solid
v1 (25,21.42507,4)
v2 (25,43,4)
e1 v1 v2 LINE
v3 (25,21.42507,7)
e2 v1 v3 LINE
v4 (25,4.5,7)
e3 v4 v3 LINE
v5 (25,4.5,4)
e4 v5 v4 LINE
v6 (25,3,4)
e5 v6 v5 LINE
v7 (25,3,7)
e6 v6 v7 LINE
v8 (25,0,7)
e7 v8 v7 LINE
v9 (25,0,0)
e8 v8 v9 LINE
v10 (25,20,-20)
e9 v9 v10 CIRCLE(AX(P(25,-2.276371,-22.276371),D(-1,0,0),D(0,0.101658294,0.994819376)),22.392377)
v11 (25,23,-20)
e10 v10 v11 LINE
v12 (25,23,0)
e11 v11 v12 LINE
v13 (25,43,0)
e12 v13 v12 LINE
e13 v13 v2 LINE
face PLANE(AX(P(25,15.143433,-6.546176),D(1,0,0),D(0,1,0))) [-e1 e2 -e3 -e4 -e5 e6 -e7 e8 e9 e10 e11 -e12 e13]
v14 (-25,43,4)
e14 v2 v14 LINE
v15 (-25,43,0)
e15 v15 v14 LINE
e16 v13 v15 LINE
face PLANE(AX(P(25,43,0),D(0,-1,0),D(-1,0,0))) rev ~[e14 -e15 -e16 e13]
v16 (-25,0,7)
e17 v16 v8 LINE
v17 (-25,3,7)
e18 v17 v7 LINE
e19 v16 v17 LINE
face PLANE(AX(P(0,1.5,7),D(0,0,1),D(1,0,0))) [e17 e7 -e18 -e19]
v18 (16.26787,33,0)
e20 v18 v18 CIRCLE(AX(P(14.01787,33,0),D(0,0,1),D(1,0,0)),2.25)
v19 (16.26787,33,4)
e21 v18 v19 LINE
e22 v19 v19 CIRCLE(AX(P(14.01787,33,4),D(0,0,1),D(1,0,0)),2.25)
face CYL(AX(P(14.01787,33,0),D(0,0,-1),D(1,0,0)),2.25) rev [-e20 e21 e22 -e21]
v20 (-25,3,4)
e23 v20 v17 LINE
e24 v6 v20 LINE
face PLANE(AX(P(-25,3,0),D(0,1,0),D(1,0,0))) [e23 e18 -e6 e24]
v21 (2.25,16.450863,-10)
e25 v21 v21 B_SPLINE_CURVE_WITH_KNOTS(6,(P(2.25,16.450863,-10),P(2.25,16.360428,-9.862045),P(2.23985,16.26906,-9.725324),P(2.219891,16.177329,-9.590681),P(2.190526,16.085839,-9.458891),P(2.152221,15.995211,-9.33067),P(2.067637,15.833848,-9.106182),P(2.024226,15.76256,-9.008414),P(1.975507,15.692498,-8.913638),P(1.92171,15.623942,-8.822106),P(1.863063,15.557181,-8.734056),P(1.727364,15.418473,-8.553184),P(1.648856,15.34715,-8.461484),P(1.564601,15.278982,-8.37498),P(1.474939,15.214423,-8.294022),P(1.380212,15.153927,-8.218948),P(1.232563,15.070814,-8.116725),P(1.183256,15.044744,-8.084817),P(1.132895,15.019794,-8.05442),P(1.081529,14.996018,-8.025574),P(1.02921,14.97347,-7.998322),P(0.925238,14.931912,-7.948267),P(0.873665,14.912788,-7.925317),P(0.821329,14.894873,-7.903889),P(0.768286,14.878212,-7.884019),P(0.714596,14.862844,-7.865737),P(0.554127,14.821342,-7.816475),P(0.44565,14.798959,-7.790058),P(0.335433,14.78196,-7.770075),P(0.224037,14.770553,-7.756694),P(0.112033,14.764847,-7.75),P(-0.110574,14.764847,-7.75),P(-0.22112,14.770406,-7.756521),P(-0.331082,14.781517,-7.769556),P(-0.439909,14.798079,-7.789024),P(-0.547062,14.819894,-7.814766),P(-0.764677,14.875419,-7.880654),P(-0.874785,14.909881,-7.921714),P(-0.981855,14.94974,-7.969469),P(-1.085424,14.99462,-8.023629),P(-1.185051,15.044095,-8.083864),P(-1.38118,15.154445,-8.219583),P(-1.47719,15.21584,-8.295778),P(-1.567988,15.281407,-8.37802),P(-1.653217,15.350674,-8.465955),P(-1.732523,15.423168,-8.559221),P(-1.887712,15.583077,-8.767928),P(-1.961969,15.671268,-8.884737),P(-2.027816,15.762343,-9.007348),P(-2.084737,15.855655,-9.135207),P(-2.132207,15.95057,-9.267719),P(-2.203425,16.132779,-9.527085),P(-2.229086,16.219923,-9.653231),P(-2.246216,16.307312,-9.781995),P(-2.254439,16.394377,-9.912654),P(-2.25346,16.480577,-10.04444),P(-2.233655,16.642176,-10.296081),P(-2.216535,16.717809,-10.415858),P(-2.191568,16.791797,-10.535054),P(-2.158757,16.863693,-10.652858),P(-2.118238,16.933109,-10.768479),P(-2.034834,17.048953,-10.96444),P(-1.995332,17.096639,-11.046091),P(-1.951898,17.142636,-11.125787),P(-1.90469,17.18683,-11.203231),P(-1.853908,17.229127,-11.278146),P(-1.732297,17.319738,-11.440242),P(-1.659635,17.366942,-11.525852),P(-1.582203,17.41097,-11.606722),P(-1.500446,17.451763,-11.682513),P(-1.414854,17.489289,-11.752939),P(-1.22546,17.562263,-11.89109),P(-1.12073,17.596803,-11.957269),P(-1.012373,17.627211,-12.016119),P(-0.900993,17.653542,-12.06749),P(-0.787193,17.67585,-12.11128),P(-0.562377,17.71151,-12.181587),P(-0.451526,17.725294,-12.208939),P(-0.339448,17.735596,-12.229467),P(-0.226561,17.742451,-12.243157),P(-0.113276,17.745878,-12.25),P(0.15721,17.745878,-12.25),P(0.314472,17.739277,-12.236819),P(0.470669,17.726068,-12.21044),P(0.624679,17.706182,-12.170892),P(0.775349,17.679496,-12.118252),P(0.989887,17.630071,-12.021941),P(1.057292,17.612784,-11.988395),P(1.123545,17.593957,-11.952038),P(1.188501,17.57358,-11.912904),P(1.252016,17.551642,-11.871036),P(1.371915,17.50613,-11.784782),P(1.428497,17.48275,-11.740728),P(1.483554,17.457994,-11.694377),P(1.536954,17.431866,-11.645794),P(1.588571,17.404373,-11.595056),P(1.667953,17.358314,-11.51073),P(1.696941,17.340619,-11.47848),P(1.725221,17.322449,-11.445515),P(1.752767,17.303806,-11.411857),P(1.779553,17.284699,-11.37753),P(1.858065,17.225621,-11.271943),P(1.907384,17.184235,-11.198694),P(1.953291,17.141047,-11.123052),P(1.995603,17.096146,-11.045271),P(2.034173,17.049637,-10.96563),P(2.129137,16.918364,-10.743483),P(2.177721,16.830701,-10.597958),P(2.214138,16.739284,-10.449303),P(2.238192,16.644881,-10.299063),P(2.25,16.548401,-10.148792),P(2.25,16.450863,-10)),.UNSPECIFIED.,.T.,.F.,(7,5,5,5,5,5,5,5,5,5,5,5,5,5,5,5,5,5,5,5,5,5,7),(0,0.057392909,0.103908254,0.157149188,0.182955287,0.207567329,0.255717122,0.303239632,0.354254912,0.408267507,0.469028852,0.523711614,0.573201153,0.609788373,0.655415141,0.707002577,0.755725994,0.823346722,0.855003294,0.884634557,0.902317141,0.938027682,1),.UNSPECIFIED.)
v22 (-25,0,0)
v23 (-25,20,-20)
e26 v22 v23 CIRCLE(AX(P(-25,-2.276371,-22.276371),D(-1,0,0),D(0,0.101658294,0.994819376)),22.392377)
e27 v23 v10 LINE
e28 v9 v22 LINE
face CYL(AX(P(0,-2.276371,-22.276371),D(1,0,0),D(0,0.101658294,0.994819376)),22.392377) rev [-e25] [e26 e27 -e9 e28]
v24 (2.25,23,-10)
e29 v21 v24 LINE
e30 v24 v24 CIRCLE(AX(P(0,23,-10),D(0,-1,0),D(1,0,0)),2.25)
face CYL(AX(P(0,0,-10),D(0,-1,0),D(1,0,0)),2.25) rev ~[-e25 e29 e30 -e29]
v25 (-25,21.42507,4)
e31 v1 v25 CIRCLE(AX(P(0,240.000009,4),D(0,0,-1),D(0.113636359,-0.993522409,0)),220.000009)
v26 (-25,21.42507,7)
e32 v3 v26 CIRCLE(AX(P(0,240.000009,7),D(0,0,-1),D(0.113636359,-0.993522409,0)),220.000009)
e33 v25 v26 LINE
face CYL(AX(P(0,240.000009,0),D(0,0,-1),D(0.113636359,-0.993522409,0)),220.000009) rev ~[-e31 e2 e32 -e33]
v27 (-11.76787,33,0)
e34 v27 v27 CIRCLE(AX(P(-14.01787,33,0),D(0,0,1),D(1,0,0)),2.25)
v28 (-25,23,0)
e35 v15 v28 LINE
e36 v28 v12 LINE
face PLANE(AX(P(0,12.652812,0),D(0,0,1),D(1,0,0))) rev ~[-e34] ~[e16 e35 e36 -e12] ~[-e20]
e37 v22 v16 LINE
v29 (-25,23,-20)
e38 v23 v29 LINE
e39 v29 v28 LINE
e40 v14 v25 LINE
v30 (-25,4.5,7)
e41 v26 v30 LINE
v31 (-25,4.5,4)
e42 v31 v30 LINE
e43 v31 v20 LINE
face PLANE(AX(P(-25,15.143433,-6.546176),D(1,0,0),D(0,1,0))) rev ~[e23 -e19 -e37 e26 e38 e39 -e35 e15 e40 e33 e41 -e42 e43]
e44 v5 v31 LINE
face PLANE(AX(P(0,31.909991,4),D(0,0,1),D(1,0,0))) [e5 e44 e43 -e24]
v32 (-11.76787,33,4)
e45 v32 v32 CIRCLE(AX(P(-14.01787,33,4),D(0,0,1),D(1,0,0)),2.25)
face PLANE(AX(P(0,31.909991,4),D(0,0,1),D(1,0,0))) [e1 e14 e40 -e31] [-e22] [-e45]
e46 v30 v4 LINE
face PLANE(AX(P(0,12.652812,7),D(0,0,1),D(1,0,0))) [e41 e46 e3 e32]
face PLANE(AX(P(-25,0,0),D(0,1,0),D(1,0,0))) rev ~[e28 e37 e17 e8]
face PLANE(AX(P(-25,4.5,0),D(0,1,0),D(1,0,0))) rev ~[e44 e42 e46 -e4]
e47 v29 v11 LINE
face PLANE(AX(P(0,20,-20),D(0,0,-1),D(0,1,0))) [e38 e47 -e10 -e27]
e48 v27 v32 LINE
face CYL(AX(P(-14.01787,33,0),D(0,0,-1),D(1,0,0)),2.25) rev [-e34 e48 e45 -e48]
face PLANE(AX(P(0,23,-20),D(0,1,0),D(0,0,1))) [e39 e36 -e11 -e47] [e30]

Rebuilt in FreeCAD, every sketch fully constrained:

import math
import FreeCAD as App
import Part
import Sketcher

doc = App.newDocument("Part")
body = doc.addObject("PartDesign::Body", "Body")

# Sketch on XY plane
sketch1 = body.newObject("Sketcher::SketchObject", "Sketch")
sketch1.AttachmentSupport = (doc.getObject("XY_Plane"), [""])
sketch1.MapMode = "FlatFace"
sketch1.addGeometry([
    Part.LineSegment(App.Vector(-25, 43, 0), App.Vector(-25, 0, 0)),  # 0
    Part.LineSegment(App.Vector(-25, 0, 0), App.Vector(25, 0, 0)),  # 1
    Part.LineSegment(App.Vector(25, 0, 0), App.Vector(25, 43, 0)),  # 2
    Part.LineSegment(App.Vector(25, 43, 0), App.Vector(-25, 43, 0)),  # 3
    Part.Circle(App.Vector(-14, 33, 0), App.Vector(0, 0, 1), 2.2),  # 4
    Part.Circle(App.Vector(14, 33, 0), App.Vector(0, 0, 1), 2.2),  # 5
], False)
sketch1.addConstraint([
    Sketcher.Constraint("Coincident", 0, 2, 1, 1),
    Sketcher.Constraint("Coincident", 1, 2, 2, 1),
    Sketcher.Constraint("Coincident", 2, 2, 3, 1),
    Sketcher.Constraint("Coincident", 3, 2, 0, 1),
    Sketcher.Constraint("Vertical", 0),
    Sketcher.Constraint("Horizontal", 1),
    Sketcher.Constraint("Vertical", 2),
    Sketcher.Constraint("Horizontal", 3),
    Sketcher.Constraint("Equal", 4, 5),
    Sketcher.Constraint("Symmetric", 0, 2, 1, 2, -1, 1),
    Sketcher.Constraint("Symmetric", 4, 3, 5, 3, -2),
    Sketcher.Constraint("Diameter", 4, 4.5),
    Sketcher.Constraint("DistanceX", 1, 1, 1, 2, 50.0),
    Sketcher.Constraint("DistanceY", 0, 2, 0, 1, 43.0),
    Sketcher.Constraint("DistanceY", -1, 1, 4, 3, 33.0),
    Sketcher.Constraint("DistanceX", 4, 3, -1, 1, 14.01787),
])
pad1 = body.newObject("PartDesign::Pad", "Pad")
pad1.Profile = sketch1
pad1.Length = 4

# Sketch on XY plane
sketch2 = body.newObject("Sketcher::SketchObject", "Sketch001")
sketch2.AttachmentSupport = (doc.getObject("XY_Plane"), [""])
sketch2.MapMode = "FlatFace"
sketch2.addGeometry([
    Part.ArcOfCircle(Part.Circle(App.Vector(0, 240, 0), App.Vector(0, 0, 1), 220), math.radians(-96.52), math.radians(-83.48)),  # 0
    Part.LineSegment(App.Vector(-25, 21.4, 0), App.Vector(-25, 4.5, 0)),  # 1
    Part.LineSegment(App.Vector(-25, 4.5, 0), App.Vector(25, 4.5, 0)),  # 2
    Part.LineSegment(App.Vector(25, 4.5, 0), App.Vector(25, 21.4, 0)),  # 3
    Part.LineSegment(App.Vector(-25, 3, 0), App.Vector(-25, 0, 0)),  # 4
    Part.LineSegment(App.Vector(-25, 0, 0), App.Vector(25, 0, 0)),  # 5
    Part.LineSegment(App.Vector(25, 0, 0), App.Vector(25, 3, 0)),  # 6
    Part.LineSegment(App.Vector(25, 3, 0), App.Vector(-25, 3, 0)),  # 7
], False)
sketch2.addConstraint([
    Sketcher.Constraint("Coincident", 0, 1, 1, 1),
    Sketcher.Constraint("Coincident", 1, 2, 2, 1),
    Sketcher.Constraint("Coincident", 2, 2, 3, 1),
    Sketcher.Constraint("Coincident", 3, 2, 0, 2),
    Sketcher.Constraint("Coincident", 4, 2, 5, 1),
    Sketcher.Constraint("Coincident", 5, 2, 6, 1),
    Sketcher.Constraint("Coincident", 6, 2, 7, 1),
    Sketcher.Constraint("Coincident", 7, 2, 4, 1),
    Sketcher.Constraint("Vertical", 1),
    Sketcher.Constraint("Horizontal", 2),
    Sketcher.Constraint("Vertical", 3),
    Sketcher.Constraint("Vertical", 4),
    Sketcher.Constraint("Horizontal", 5),
    Sketcher.Constraint("Vertical", 6),
    Sketcher.Constraint("Horizontal", 7),
    Sketcher.Constraint("Symmetric", 4, 2, 5, 2, -1, 1),
    Sketcher.Constraint("Symmetric", 0, 1, 3, 2, -2),
    Sketcher.Constraint("Vertical", 1, 2, 4, 2),
    Sketcher.Constraint("DistanceX", 2, 1, 2, 2, 50.0),
    Sketcher.Constraint("DistanceY", 4, 2, 4, 1, 3.0),
    Sketcher.Constraint("DistanceY", -1, 1, 1, 2, 4.5),
    Sketcher.Constraint("Radius", 0, 220.000009),
    Sketcher.Constraint("DistanceY", 1, 2, 1, 1, 16.92507),
])
pad2 = body.newObject("PartDesign::Pad", "Pad001")
pad2.Profile = sketch2
pad2.Length = 7

# Sketch on YZ plane
sketch3 = body.newObject("Sketcher::SketchObject", "Sketch002")
sketch3.AttachmentSupport = (doc.getObject("YZ_Plane"), [""])
sketch3.MapMode = "FlatFace"
sketch3.addGeometry([
    Part.LineSegment(App.Vector(23, 0, 0), App.Vector(0, 0, 0)),
    Part.ArcOfCircle(Part.Circle(App.Vector(-2.3, -22.3, 0), App.Vector(0, 0, 1), 22.4), math.radians(6), math.radians(84)),
    Part.LineSegment(App.Vector(20, -20, 0), App.Vector(23, -20, 0)),
    Part.LineSegment(App.Vector(23, -20, 0), App.Vector(23, 0, 0)),
], False)
sketch3.addConstraint([
    Sketcher.Constraint("Coincident", 0, 2, 1, 2),
    Sketcher.Constraint("Coincident", 1, 1, 2, 1),
    Sketcher.Constraint("Coincident", 2, 2, 3, 1),
    Sketcher.Constraint("Coincident", 3, 2, 0, 1),
    Sketcher.Constraint("Horizontal", 0),
    Sketcher.Constraint("Horizontal", 2),
    Sketcher.Constraint("Vertical", 3),
    Sketcher.Constraint("Coincident", 0, 2, -1, 1),
    Sketcher.Constraint("DistanceX", 0, 2, 0, 1, 23.0),
    Sketcher.Constraint("DistanceX", 2, 1, 2, 2, 3.0),
    Sketcher.Constraint("DistanceY", 3, 1, 3, 2, 20.0),
    Sketcher.Constraint("Radius", 1, 22.392377),
])
pad3 = body.newObject("PartDesign::Pad", "Pad002")
pad3.Profile = sketch3
pad3.Type = "TwoLengths"
pad3.Length = 25
pad3.Length2 = 25

# Sketch on XZ plane
sketch4 = body.newObject("Sketcher::SketchObject", "Sketch003")
sketch4.AttachmentSupport = (doc.getObject("XZ_Plane"), [""])
sketch4.MapMode = "FlatFace"
sketch4.addGeometry(Part.Circle(App.Vector(0, -10, 0), App.Vector(0, 0, 1), 2.2), False)
sketch4.addConstraint([
    Sketcher.Constraint("PointOnObject", 0, 3, -2),
    Sketcher.Constraint("Diameter", 0, 4.5),
    Sketcher.Constraint("DistanceY", 0, 3, -1, 1, 10.0),
])
pocket1 = body.newObject("PartDesign::Pocket", "Pocket")
pocket1.Profile = sketch4
pocket1.Type = "ThroughAll"

# Sketch on XZ plane
sketch5 = body.newObject("Sketcher::SketchObject", "Sketch004")
sketch5.AttachmentSupport = (doc.getObject("XZ_Plane"), [""])
sketch5.MapMode = "FlatFace"
sketch5.addGeometry([
    Part.Circle(App.Vector(0, -10, 0), App.Vector(0, 0, 1), 3.8),
    Part.Circle(App.Vector(0, -10, 0), App.Vector(0, 0, 1), 2.2),
], False)
sketch5.addConstraint([
    Sketcher.Constraint("Coincident", 1, 3, 0, 3),
    Sketcher.Constraint("PointOnObject", 0, 3, -2),
    Sketcher.Constraint("Diameter", 0, 7.5),
    Sketcher.Constraint("Diameter", 1, 4.5),
    Sketcher.Constraint("DistanceY", 0, 3, -1, 1, 10.0),
])
pocket2 = body.newObject("PartDesign::Pocket", "Pocket001")
pocket2.Profile = sketch5
pocket2.Length = 10

doc.recompute()
